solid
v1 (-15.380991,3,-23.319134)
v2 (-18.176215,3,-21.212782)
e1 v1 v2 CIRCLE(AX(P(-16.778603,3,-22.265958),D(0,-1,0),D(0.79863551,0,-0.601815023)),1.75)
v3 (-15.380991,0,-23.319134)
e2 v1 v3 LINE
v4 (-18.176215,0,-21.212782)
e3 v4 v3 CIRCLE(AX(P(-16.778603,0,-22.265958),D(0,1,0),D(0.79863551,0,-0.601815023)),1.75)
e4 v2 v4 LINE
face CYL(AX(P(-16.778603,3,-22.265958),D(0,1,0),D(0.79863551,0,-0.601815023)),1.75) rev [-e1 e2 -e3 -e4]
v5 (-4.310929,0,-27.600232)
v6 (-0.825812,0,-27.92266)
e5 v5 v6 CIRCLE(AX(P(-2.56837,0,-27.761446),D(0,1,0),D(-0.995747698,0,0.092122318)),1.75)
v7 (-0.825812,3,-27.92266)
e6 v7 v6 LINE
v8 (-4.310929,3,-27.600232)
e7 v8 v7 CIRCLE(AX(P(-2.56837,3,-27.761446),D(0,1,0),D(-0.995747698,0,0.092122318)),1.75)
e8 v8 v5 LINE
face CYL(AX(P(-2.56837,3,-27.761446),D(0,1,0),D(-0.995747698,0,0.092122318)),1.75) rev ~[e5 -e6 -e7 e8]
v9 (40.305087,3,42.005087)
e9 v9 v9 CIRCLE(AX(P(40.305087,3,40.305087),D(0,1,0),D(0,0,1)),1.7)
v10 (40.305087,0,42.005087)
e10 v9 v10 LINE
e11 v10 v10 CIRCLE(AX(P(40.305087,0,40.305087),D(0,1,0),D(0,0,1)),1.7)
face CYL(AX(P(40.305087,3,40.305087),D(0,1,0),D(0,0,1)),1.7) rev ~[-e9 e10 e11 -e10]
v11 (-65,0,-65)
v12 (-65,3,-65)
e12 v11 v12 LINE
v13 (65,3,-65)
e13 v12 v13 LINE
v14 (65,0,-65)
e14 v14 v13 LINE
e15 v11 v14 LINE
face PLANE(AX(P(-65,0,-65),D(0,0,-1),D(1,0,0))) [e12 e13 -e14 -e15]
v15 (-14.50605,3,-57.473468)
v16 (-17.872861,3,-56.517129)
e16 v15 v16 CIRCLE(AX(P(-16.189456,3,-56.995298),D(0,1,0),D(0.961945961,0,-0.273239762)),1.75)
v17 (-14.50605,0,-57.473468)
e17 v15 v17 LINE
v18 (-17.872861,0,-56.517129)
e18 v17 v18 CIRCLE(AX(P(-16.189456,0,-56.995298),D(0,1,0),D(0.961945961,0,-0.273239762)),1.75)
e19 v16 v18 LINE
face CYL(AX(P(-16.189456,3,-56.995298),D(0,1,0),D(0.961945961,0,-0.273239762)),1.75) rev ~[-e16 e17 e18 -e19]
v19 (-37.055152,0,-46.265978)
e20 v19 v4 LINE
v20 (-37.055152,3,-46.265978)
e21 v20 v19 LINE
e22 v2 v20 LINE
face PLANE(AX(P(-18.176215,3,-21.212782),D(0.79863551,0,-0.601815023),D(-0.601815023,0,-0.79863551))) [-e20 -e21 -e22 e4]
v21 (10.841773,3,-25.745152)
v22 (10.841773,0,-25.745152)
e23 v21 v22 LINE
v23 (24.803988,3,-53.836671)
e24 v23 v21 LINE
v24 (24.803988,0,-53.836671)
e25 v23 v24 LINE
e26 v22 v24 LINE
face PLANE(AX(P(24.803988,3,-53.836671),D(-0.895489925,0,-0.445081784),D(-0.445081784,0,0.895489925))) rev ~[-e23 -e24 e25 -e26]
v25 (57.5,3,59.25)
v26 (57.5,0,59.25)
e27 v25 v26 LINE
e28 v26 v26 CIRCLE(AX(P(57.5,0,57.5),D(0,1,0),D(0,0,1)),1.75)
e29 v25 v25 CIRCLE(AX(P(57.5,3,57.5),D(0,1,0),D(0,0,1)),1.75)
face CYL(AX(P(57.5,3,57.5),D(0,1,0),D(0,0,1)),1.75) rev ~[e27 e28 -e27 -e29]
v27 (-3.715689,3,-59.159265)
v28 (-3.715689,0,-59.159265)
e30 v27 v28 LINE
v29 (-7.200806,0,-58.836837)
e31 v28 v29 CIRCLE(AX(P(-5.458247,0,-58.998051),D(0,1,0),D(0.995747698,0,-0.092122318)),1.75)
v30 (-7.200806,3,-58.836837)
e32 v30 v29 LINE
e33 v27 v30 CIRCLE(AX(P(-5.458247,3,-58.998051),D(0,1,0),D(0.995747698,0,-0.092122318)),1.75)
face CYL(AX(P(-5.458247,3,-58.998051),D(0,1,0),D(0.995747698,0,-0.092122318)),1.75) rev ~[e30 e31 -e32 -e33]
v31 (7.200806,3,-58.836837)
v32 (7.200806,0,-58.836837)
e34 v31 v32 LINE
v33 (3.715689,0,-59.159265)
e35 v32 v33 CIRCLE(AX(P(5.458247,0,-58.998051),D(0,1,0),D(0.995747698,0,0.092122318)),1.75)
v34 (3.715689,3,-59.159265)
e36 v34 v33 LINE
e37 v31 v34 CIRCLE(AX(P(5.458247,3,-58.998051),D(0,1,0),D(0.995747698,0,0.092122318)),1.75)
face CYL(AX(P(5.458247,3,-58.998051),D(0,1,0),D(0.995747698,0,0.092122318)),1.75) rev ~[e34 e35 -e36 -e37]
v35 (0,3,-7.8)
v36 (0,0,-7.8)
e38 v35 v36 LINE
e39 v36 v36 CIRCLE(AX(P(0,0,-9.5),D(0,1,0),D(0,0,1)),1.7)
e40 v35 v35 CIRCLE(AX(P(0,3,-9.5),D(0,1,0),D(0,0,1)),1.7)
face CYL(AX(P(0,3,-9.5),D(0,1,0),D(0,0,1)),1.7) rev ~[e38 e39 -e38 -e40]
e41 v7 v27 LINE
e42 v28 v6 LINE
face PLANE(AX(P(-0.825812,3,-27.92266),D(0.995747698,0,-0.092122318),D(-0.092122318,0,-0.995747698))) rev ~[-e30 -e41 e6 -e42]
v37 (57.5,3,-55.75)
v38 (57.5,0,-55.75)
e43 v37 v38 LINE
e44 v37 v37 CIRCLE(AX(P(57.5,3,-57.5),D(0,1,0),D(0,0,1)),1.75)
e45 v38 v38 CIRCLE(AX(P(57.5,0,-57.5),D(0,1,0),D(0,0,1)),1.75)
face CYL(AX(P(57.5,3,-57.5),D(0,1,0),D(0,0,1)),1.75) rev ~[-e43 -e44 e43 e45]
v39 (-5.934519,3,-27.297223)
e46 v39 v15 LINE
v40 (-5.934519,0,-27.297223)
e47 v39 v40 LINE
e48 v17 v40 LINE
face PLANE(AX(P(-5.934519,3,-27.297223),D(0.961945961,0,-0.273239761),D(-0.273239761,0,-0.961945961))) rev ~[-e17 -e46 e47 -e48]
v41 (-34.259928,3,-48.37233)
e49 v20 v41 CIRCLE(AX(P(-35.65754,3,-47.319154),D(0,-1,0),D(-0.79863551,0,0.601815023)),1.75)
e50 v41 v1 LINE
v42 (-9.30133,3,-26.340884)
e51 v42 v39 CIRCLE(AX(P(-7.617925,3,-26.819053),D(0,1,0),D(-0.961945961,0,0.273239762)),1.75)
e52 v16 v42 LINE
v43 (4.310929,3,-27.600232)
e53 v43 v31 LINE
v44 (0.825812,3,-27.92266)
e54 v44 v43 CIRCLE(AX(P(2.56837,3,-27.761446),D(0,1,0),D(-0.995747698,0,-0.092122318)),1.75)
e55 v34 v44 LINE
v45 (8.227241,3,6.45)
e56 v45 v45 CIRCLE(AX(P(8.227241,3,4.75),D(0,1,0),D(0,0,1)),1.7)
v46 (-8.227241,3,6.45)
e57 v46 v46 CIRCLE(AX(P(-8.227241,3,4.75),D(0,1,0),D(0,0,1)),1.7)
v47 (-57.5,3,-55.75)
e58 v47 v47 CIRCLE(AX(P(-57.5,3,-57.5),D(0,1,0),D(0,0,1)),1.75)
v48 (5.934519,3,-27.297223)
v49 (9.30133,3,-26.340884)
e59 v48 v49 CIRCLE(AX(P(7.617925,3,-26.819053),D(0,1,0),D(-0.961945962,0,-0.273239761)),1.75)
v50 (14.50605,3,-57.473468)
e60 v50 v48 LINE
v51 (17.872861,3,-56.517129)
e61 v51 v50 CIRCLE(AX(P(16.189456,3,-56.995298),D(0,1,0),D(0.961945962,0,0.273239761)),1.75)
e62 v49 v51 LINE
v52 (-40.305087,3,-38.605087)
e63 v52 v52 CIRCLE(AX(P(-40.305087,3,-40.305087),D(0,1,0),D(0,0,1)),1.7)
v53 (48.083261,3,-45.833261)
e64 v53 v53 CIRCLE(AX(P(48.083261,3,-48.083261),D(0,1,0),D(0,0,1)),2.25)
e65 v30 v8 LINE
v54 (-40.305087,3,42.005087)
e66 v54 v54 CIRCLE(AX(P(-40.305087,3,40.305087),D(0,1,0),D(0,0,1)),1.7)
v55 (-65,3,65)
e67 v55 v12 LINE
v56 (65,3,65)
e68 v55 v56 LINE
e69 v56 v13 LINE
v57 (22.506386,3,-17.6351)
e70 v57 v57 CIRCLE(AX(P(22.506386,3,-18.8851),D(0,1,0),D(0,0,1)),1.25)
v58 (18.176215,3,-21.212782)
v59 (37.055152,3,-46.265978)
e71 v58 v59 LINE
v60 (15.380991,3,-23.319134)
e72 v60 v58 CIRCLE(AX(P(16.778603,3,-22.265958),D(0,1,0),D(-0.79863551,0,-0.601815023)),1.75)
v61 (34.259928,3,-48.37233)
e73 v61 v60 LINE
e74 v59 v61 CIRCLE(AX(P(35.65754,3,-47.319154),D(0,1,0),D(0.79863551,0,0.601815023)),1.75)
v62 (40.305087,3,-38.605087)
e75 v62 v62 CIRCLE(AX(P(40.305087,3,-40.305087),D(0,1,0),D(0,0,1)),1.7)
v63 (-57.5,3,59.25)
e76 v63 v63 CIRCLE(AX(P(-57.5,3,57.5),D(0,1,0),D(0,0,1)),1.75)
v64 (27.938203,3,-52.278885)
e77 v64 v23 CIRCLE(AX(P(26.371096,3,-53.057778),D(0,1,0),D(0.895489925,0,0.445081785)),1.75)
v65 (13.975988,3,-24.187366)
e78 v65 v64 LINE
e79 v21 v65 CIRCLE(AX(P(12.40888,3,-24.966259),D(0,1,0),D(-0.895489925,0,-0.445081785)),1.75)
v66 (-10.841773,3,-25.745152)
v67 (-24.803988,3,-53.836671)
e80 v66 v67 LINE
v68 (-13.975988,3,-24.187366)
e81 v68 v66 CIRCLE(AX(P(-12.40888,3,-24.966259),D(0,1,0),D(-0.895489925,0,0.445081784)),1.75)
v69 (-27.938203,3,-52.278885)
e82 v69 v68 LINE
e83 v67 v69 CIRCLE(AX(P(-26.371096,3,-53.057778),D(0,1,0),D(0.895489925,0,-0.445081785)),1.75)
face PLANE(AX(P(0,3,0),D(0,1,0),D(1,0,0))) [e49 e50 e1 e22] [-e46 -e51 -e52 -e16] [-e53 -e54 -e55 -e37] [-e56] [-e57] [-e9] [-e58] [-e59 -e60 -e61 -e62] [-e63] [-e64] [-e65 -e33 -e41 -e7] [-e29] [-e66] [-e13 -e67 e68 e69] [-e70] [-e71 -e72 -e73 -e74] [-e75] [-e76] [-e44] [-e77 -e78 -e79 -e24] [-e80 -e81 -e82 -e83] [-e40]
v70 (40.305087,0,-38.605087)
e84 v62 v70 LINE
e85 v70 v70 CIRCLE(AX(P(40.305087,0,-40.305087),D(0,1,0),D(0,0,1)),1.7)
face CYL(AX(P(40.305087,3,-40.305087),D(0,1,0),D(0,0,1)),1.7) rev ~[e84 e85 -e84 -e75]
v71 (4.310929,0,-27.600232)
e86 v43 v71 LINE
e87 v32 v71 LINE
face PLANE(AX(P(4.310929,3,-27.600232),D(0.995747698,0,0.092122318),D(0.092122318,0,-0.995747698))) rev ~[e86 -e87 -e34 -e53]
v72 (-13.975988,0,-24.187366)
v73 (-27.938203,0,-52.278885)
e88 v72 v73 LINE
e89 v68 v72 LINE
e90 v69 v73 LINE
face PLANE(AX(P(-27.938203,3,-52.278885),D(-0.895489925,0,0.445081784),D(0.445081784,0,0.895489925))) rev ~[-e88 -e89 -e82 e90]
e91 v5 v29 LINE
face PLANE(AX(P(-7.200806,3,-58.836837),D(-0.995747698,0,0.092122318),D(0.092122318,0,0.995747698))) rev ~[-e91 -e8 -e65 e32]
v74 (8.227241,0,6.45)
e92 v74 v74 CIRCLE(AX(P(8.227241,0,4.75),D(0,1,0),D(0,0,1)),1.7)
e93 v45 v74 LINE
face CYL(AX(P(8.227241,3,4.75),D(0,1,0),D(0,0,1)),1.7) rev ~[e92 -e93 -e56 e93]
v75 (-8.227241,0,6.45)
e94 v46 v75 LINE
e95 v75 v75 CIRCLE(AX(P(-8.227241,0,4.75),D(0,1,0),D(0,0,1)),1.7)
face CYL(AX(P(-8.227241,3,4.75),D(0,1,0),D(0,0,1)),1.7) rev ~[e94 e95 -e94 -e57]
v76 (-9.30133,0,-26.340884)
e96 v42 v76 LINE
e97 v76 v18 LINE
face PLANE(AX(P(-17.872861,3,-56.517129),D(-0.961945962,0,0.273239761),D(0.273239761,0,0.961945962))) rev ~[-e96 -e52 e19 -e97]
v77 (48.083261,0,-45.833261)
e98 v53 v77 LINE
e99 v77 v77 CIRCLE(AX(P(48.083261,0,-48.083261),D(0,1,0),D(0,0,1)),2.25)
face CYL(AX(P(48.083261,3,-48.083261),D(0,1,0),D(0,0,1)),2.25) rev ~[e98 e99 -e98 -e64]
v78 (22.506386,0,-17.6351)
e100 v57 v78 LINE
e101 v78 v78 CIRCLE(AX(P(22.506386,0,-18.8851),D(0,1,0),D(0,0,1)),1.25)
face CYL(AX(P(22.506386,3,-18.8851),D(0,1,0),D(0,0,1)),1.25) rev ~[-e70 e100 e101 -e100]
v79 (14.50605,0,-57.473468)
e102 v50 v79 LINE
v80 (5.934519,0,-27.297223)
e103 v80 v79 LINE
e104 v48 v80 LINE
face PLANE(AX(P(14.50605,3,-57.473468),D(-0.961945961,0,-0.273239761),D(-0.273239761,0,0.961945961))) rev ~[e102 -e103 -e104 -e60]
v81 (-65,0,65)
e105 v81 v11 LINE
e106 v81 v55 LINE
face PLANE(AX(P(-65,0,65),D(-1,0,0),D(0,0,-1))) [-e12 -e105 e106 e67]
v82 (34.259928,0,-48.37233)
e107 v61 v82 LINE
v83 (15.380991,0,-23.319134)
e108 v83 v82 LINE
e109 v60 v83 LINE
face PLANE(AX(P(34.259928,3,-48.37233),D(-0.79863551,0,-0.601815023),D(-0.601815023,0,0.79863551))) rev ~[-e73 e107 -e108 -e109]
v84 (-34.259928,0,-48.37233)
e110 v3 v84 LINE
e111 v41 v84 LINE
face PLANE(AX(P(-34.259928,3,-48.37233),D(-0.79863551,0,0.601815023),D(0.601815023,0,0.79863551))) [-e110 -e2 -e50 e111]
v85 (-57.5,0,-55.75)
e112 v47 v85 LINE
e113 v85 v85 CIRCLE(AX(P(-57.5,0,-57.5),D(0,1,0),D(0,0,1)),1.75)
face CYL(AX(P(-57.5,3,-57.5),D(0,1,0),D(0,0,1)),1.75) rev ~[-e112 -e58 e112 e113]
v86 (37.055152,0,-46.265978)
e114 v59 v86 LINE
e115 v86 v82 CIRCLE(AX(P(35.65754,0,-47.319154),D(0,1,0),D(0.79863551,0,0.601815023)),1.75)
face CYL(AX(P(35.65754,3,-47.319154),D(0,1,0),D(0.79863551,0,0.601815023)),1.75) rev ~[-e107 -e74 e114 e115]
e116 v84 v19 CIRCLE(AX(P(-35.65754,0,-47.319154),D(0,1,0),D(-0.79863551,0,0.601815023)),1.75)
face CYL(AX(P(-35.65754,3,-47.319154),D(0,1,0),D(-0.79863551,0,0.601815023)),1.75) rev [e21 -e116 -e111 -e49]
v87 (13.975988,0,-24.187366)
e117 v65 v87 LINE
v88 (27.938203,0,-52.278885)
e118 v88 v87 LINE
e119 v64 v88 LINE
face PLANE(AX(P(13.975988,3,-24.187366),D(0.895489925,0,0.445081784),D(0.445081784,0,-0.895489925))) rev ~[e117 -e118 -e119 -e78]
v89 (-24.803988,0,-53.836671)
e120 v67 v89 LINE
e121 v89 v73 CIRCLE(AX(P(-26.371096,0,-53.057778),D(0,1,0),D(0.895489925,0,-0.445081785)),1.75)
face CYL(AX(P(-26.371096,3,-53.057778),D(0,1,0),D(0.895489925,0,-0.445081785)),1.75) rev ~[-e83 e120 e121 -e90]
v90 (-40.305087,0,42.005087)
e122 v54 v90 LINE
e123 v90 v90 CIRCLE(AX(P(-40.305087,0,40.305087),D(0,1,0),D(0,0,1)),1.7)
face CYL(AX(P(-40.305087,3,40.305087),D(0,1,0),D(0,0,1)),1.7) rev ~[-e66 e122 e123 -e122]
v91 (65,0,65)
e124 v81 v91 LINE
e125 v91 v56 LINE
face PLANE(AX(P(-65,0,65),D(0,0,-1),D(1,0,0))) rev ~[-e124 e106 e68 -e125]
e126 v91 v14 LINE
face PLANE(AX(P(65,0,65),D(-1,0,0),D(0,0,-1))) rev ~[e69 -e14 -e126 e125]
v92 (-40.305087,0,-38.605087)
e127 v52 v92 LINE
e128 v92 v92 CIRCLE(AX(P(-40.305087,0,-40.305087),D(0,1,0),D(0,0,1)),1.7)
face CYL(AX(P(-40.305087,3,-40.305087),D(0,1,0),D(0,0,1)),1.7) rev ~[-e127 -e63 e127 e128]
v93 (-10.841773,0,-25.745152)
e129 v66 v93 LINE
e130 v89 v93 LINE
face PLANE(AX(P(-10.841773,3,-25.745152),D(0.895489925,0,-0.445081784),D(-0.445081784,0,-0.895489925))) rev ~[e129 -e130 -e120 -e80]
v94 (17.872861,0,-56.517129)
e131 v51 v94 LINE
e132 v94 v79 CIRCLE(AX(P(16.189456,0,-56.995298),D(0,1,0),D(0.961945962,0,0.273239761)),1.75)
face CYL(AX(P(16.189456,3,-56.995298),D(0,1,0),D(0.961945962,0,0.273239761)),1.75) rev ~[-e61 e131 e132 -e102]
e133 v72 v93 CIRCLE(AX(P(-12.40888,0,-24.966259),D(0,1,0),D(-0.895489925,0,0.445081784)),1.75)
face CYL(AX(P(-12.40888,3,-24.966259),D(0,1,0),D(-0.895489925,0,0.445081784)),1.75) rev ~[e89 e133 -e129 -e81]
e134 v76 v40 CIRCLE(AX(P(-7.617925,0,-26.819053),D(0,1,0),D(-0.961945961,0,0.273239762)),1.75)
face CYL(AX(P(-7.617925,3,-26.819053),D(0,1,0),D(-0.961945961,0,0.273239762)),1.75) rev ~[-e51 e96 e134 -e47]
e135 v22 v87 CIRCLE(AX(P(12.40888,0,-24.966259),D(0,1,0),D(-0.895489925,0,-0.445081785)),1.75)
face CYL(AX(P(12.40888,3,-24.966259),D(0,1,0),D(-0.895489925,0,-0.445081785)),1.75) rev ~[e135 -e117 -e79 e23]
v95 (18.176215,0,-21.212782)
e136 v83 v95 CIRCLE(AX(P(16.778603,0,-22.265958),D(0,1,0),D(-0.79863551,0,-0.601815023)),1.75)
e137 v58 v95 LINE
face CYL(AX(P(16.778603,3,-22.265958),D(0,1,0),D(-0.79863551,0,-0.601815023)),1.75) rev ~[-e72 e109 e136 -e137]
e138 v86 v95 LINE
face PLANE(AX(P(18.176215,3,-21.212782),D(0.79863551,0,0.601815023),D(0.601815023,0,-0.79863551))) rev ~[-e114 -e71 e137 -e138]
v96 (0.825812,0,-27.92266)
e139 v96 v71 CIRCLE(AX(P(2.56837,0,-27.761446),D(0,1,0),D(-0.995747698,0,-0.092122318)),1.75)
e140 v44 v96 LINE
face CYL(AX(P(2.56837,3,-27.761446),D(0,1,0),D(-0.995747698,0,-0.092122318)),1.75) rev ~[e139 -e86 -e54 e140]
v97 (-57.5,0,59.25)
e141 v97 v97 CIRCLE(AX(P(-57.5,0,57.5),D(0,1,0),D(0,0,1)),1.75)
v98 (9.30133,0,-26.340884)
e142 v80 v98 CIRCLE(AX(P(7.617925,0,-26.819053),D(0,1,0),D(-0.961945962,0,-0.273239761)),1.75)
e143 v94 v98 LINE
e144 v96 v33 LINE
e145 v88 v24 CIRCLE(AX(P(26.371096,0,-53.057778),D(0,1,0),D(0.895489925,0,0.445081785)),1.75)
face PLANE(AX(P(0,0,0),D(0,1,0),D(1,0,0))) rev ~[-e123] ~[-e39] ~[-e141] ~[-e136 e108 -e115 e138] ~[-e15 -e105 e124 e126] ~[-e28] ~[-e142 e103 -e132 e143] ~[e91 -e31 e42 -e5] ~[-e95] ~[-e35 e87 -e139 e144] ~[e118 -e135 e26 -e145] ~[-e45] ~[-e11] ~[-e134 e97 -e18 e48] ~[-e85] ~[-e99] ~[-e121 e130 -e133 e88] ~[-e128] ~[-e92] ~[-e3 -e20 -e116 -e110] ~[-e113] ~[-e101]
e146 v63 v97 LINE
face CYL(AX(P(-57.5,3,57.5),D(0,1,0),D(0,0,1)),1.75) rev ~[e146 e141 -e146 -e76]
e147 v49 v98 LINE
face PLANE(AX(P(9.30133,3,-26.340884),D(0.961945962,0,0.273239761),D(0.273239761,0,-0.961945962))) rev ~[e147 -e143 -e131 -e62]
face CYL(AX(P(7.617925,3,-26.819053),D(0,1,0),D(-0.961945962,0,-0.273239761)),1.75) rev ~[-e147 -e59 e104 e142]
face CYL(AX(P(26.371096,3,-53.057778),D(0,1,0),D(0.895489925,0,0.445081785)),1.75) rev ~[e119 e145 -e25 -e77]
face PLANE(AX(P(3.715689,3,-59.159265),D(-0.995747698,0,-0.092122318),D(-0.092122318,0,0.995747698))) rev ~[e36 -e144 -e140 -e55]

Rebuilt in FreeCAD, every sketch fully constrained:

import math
import FreeCAD as App
import Part
import Sketcher
Q = App.Units.Quantity


def add_polygon(sketch, points):
    """Adds a closed chain of lines whose ends are joined by coincident constraints."""
    first, n = sketch.GeometryCount, len(points)
    for a, b in zip(points, points[1:] + points[:1]):
        sketch.addGeometry(Part.LineSegment(App.Vector(*a, 0), App.Vector(*b, 0)), False)
    for i in range(n):
        sketch.addConstraint(Sketcher.Constraint("Coincident", first + i, 2, first + (i + 1) % n, 1))

doc = App.newDocument("Part")
body = doc.addObject("PartDesign::Body", "Body")

# Sketch on XZ plane
sketch1 = body.newObject("Sketcher::SketchObject", "Sketch")
sketch1.AttachmentSupport = (doc.getObject("XZ_Plane"), [""])
sketch1.MapMode = "FlatFace"
add_polygon(sketch1, [(-65, -65), (-65, 65), (65, 65), (65, -65)])  # lines 0-3
sketch1.addConstraint([
    Sketcher.Constraint("Vertical", 0),
    Sketcher.Constraint("Horizontal", 1),
    Sketcher.Constraint("Vertical", 2),
    Sketcher.Constraint("Horizontal", 3),
    Sketcher.Constraint("Symmetric", 0, 2, 2, 2, -1, 1),
    Sketcher.Constraint("Equal", 3, 0),
    Sketcher.Constraint("DistanceX", 1, 1, 1, 2, 130.0),
])
pad1 = body.newObject("PartDesign::Pad", "Pad")
pad1.Profile = sketch1
pad1.Length = 3
pad1.Reversed = True

# Sketch on XZ plane
sketch2 = body.newObject("Sketcher::SketchObject", "Sketch001")
sketch2.AttachmentSupport = (doc.getObject("XZ_Plane"), [""])
sketch2.MapMode = "FlatFace"
sketch2.AttachmentOffset = App.Placement(App.Vector(0, 0, -3), App.Rotation())
sketch2.addGeometry(Part.Circle(App.Vector(-57.5, -57.5, 0), App.Vector(0, 0, 1), 1.8), False)
sketch2.addConstraint([
    Sketcher.Constraint("Diameter", 0, 3.5),
    Sketcher.Constraint("DistanceX", 0, 3, -1, 1, 57.5),
    Sketcher.Constraint("DistanceY", 0, 3, -1, 1, 57.5),
])
pocket1 = body.newObject("PartDesign::Pocket", "Pocket")
pocket1.Profile = sketch2
pocket1.Type = "UpToFirst"
pocket1.Reversed = True

# Sketch on XZ plane
sketch3 = body.newObject("Sketcher::SketchObject", "Sketch002")
sketch3.AttachmentSupport = (doc.getObject("XZ_Plane"), [""])
sketch3.MapMode = "FlatFace"
sketch3.AttachmentOffset = App.Placement(App.Vector(0, 0, -3), App.Rotation())
sketch3.addGeometry(Part.Circle(App.Vector(57.5, -57.5, 0), App.Vector(0, 0, 1), 1.8), False)
sketch3.addConstraint([
    Sketcher.Constraint("Diameter", 0, 3.5),
    Sketcher.Constraint("DistanceX", -1, 1, 0, 3, 57.5),
    Sketcher.Constraint("DistanceY", 0, 3, -1, 1, 57.5),
])
pocket2 = body.newObject("PartDesign::Pocket", "Pocket001")
pocket2.Profile = sketch3
pocket2.Type = "UpToFirst"
pocket2.Reversed = True

# Sketch on XZ plane
sketch4 = body.newObject("Sketcher::SketchObject", "Sketch003")
sketch4.AttachmentSupport = (doc.getObject("XZ_Plane"), [""])
sketch4.MapMode = "FlatFace"
sketch4.AttachmentOffset = App.Placement(App.Vector(0, 0, -3), App.Rotation())
sketch4.addGeometry(Part.Circle(App.Vector(57.5, 57.5, 0), App.Vector(0, 0, 1), 1.8), False)
sketch4.addConstraint([
    Sketcher.Constraint("Diameter", 0, 3.5),
    Sketcher.Constraint("DistanceX", -1, 1, 0, 3, 57.5),
    Sketcher.Constraint("DistanceY", -1, 1, 0, 3, 57.5),
])
pocket3 = body.newObject("PartDesign::Pocket", "Pocket002")
pocket3.Profile = sketch4
pocket3.Type = "UpToFirst"
pocket3.Reversed = True

# Sketch on XZ plane
sketch5 = body.newObject("Sketcher::SketchObject", "Sketch004")
sketch5.AttachmentSupport = (doc.getObject("XZ_Plane"), [""])
sketch5.MapMode = "FlatFace"
sketch5.AttachmentOffset = App.Placement(App.Vector(0, 0, -3), App.Rotation())
sketch5.addGeometry(Part.Circle(App.Vector(-57.5, 57.5, 0), App.Vector(0, 0, 1), 1.8), False)
sketch5.addConstraint([
    Sketcher.Constraint("Diameter", 0, 3.5),
    Sketcher.Constraint("DistanceX", 0, 3, -1, 1, 57.5),
    Sketcher.Constraint("DistanceY", -1, 1, 0, 3, 57.5),
])
pocket4 = body.newObject("PartDesign::Pocket", "Pocket003")
pocket4.Profile = sketch5
pocket4.Type = "UpToFirst"
pocket4.Reversed = True

# Sketch on XZ plane
sketch6 = body.newObject("Sketcher::SketchObject", "Sketch005")
sketch6.AttachmentSupport = (doc.getObject("XZ_Plane"), [""])
sketch6.MapMode = "FlatFace"
sketch6.AttachmentOffset = App.Placement(App.Vector(0, 0, -3), App.Rotation())
sketch6.addGeometry(Part.Circle(App.Vector(-40.3, -40.3, 0), App.Vector(0, 0, 1), 1.7), False)
sketch6.addConstraint([
    Sketcher.Constraint("Diameter", 0, 3.4),
    Sketcher.Constraint("DistanceX", 0, 3, -1, 1, 40.305087),
    Sketcher.Constraint("DistanceY", 0, 3, -1, 1, 40.305087),
])
pocket5 = body.newObject("PartDesign::Pocket", "Pocket004")
pocket5.Profile = sketch6
pocket5.Type = "UpToFirst"
pocket5.Reversed = True

# Sketch on XZ plane
sketch7 = body.newObject("Sketcher::SketchObject", "Sketch006")
sketch7.AttachmentSupport = (doc.getObject("XZ_Plane"), [""])
sketch7.MapMode = "FlatFace"
sketch7.AttachmentOffset = App.Placement(App.Vector(0, 0, -3), App.Rotation())
sketch7.addGeometry(Part.Circle(App.Vector(40.3, -40.3, 0), App.Vector(0, 0, 1), 1.7), False)
sketch7.addConstraint([
    Sketcher.Constraint("Diameter", 0, 3.4),
    Sketcher.Constraint("DistanceX", -1, 1, 0, 3, 40.305087),
    Sketcher.Constraint("DistanceY", 0, 3, -1, 1, 40.305087),
])
pocket6 = body.newObject("PartDesign::Pocket", "Pocket005")
pocket6.Profile = sketch7
pocket6.Type = "UpToFirst"
pocket6.Reversed = True

# Sketch on XZ plane
sketch8 = body.newObject("Sketcher::SketchObject", "Sketch007")
sketch8.AttachmentSupport = (doc.getObject("XZ_Plane"), [""])
sketch8.MapMode = "FlatFace"
sketch8.AttachmentOffset = App.Placement(App.Vector(0, 0, -3), App.Rotation())
sketch8.addGeometry(Part.Circle(App.Vector(40.3, 40.3, 0), App.Vector(0, 0, 1), 1.7), False)
sketch8.addConstraint([
    Sketcher.Constraint("Diameter", 0, 3.4),
    Sketcher.Constraint("DistanceX", -1, 1, 0, 3, 40.305087),
    Sketcher.Constraint("DistanceY", -1, 1, 0, 3, 40.305087),
])
pocket7 = body.newObject("PartDesign::Pocket", "Pocket006")
pocket7.Profile = sketch8
pocket7.Type = "UpToFirst"
pocket7.Reversed = True

# Sketch on XZ plane
sketch9 = body.newObject("Sketcher::SketchObject", "Sketch008")
sketch9.AttachmentSupport = (doc.getObject("XZ_Plane"), [""])
sketch9.MapMode = "FlatFace"
sketch9.AttachmentOffset = App.Placement(App.Vector(0, 0, -3), App.Rotation())
sketch9.addGeometry(Part.Circle(App.Vector(-40.3, 40.3, 0), App.Vector(0, 0, 1), 1.7), False)
sketch9.addConstraint([
    Sketcher.Constraint("Diameter", 0, 3.4),
    Sketcher.Constraint("DistanceX", 0, 3, -1, 1, 40.305087),
    Sketcher.Constraint("DistanceY", -1, 1, 0, 3, 40.305087),
])
pocket8 = body.newObject("PartDesign::Pocket", "Pocket007")
pocket8.Profile = sketch9
pocket8.Type = "UpToFirst"
pocket8.Reversed = True

# Sketch on XZ plane
sketch10 = body.newObject("Sketcher::SketchObject", "Sketch009")
sketch10.AttachmentSupport = (doc.getObject("XZ_Plane"), [""])
sketch10.MapMode = "FlatFace"
sketch10.AttachmentOffset = App.Placement(App.Vector(0, 0, -3), App.Rotation())
sketch10.addGeometry(Part.Circle(App.Vector(0, -9.5, 0), App.Vector(0, 0, 1), 1.7), False)
sketch10.addConstraint([
    Sketcher.Constraint("PointOnObject", 0, 3, -2),
    Sketcher.Constraint("Diameter", 0, 3.4),
    Sketcher.Constraint("DistanceY", 0, 3, -1, 1, 9.5),
])
pocket9 = body.newObject("PartDesign::Pocket", "Pocket008")
pocket9.Profile = sketch10
pocket9.Type = "UpToFirst"
pocket9.Reversed = True

# Sketch on XZ plane
sketch11 = body.newObject("Sketcher::SketchObject", "Sketch010")
sketch11.AttachmentSupport = (doc.getObject("XZ_Plane"), [""])
sketch11.MapMode = "FlatFace"
sketch11.AttachmentOffset = App.Placement(App.Vector(0, 0, -3), App.Rotation())
sketch11.addGeometry(Part.Circle(App.Vector(8.2, 4.8, 0), App.Vector(0, 0, 1), 1.7), False)
sketch11.addConstraint([
    Sketcher.Constraint("Diameter", 0, 3.4),
    Sketcher.Constraint("DistanceY", -1, 1, 0, 3, 4.75),
    Sketcher.Constraint("DistanceX", -1, 1, 0, 3, 8.227241),
])
pocket10 = body.newObject("PartDesign::Pocket", "Pocket009")
pocket10.Profile = sketch11
pocket10.Type = "UpToFirst"
pocket10.Reversed = True

# Sketch on XZ plane
sketch12 = body.newObject("Sketcher::SketchObject", "Sketch011")
sketch12.AttachmentSupport = (doc.getObject("XZ_Plane"), [""])
sketch12.MapMode = "FlatFace"
sketch12.AttachmentOffset = App.Placement(App.Vector(0, 0, -3), App.Rotation())
sketch12.addGeometry(Part.Circle(App.Vector(-8.2, 4.8, 0), App.Vector(0, 0, 1), 1.7), False)
sketch12.addConstraint([
    Sketcher.Constraint("Diameter", 0, 3.4),
    Sketcher.Constraint("DistanceY", -1, 1, 0, 3, 4.75),
    Sketcher.Constraint("DistanceX", 0, 3, -1, 1, 8.227241),
])
pocket11 = body.newObject("PartDesign::Pocket", "Pocket010")
pocket11.Profile = sketch12
pocket11.Type = "UpToFirst"
pocket11.Reversed = True

# Sketch on XZ plane
sketch13 = body.newObject("Sketcher::SketchObject", "Sketch012")
sketch13.AttachmentSupport = (doc.getObject("XZ_Plane"), [""])
sketch13.MapMode = "FlatFace"
sketch13.AttachmentOffset = App.Placement(App.Vector(0, 0, -3), App.Rotation())
sketch13.addGeometry(Part.Circle(App.Vector(48.1, -48.1, 0), App.Vector(0, 0, 1), 2.2), False)
sketch13.addConstraint([
    Sketcher.Constraint("Diameter", 0, 4.5),
    Sketcher.Constraint("DistanceX", -1, 1, 0, 3, 48.083261),
    Sketcher.Constraint("DistanceY", 0, 3, -1, 1, 48.083261),
])
pocket12 = body.newObject("PartDesign::Pocket", "Pocket011")
pocket12.Profile = sketch13
pocket12.Type = "UpToFirst"
pocket12.Reversed = True

# Sketch on XZ plane
sketch14 = body.newObject("Sketcher::SketchObject", "Sketch013")
sketch14.AttachmentSupport = (doc.getObject("XZ_Plane"), [""])
sketch14.MapMode = "FlatFace"
sketch14.AttachmentOffset = App.Placement(App.Vector(0, 0, -3), App.Rotation())
sketch14.addGeometry(Part.Circle(App.Vector(22.5, -18.9, 0), App.Vector(0, 0, 1), 1.2), False)
sketch14.addConstraint([
    Sketcher.Constraint("Diameter", 0, 2.5),
    Sketcher.Constraint("DistanceY", 0, 3, -1, 1, 18.8851),
    Sketcher.Constraint("DistanceX", -1, 1, 0, 3, 22.506386),
])
pocket13 = body.newObject("PartDesign::Pocket", "Pocket012")
pocket13.Profile = sketch14
pocket13.Type = "UpToFirst"
pocket13.Reversed = True

# Sketch on XZ plane
sketch15 = body.newObject("Sketcher::SketchObject", "Sketch014")
sketch15.AttachmentSupport = (doc.getObject("XZ_Plane"), [""])
sketch15.MapMode = "FlatFace"
sketch15.AttachmentOffset = App.Placement(App.Vector(0, 0, -3), App.Rotation())
sketch15.addGeometry([
    Part.LineSegment(App.Vector(-15.4, -23.3, 0), App.Vector(-34.3, -48.4, 0)),
    Part.ArcOfCircle(Part.Circle(App.Vector(-35.7, -47.3, 0), App.Vector(0, 0, 1), 1.8), math.radians(143), math.radians(323)),
    Part.LineSegment(App.Vector(-37.1, -46.3, 0), App.Vector(-18.2, -21.2, 0)),
    Part.ArcOfCircle(Part.Circle(App.Vector(-16.8, -22.3, 0), App.Vector(0, 0, 1), 1.8), math.radians(-37), math.radians(143)),
], False)
sketch15.addConstraint([
    Sketcher.Constraint("Tangent", 0, 2, 1, 2),
    Sketcher.Constraint("Tangent", 1, 1, 2, 1),
    Sketcher.Constraint("Tangent", 2, 2, 3, 2),
    Sketcher.Constraint("Tangent", 3, 1, 0, 1),
    Sketcher.Constraint("Equal", 1, 3),
    Sketcher.Constraint("Angle", 0, Q("-127 deg")),
    Sketcher.Constraint("Radius", 1, 1.75),
    Sketcher.Constraint("Distance", 0, 31.37),
    Sketcher.Constraint("DistanceX", 1, 3, -1, 1, 35.65754),
    Sketcher.Constraint("DistanceY", 3, 3, -1, 1, 22.265958),
])
pocket14 = body.newObject("PartDesign::Pocket", "Pocket013")
pocket14.Profile = sketch15
pocket14.Type = "UpToFirst"
pocket14.Reversed = True

# Sketch on XZ plane
sketch16 = body.newObject("Sketcher::SketchObject", "Sketch015")
sketch16.AttachmentSupport = (doc.getObject("XZ_Plane"), [""])
sketch16.MapMode = "FlatFace"
sketch16.AttachmentOffset = App.Placement(App.Vector(0, 0, -3), App.Rotation())
sketch16.addGeometry([
    Part.LineSegment(App.Vector(-27.9, -52.3, 0), App.Vector(-14, -24.2, 0)),
    Part.ArcOfCircle(Part.Circle(App.Vector(-12.4, -25, 0), App.Vector(0, 0, 1), 1.8), math.radians(-26), math.radians(154)),
    Part.LineSegment(App.Vector(-10.8, -25.7, 0), App.Vector(-24.8, -53.8, 0)),
    Part.ArcOfCircle(Part.Circle(App.Vector(-26.4, -53.1, 0), App.Vector(0, 0, 1), 1.8), math.radians(154), math.radians(334)),
], False)
sketch16.addConstraint([
    Sketcher.Constraint("Tangent", 0, 2, 1, 2),
    Sketcher.Constraint("Tangent", 1, 1, 2, 1),
    Sketcher.Constraint("Tangent", 2, 2, 3, 2),
    Sketcher.Constraint("Tangent", 3, 1, 0, 1),
    Sketcher.Constraint("Equal", 1, 3),
    Sketcher.Constraint("Radius", 1, 1.75),
    Sketcher.Constraint("Distance", 0, 31.37),
    Sketcher.Constraint("DistanceX", 2, 2, 0, 2, 10.828001),
    Sketcher.Constraint("DistanceX", 1, 3, -1, 1, 12.40888),
    Sketcher.Constraint("DistanceY", 1, 3, -1, 1, 24.966259),
])
pocket15 = body.newObject("PartDesign::Pocket", "Pocket014")
pocket15.Profile = sketch16
pocket15.Type = "UpToFirst"
pocket15.Reversed = True

# Sketch on XZ plane
sketch17 = body.newObject("Sketcher::SketchObject", "Sketch016")
sketch17.AttachmentSupport = (doc.getObject("XZ_Plane"), [""])
sketch17.MapMode = "FlatFace"
sketch17.AttachmentOffset = App.Placement(App.Vector(0, 0, -3), App.Rotation())
sketch17.addGeometry([
    Part.LineSegment(App.Vector(-17.9, -56.5, 0), App.Vector(-9.3, -26.3, 0)),
    Part.ArcOfCircle(Part.Circle(App.Vector(-7.6, -26.8, 0), App.Vector(0, 0, 1), 1.8), math.radians(-16), math.radians(164)),
    Part.LineSegment(App.Vector(-5.9, -27.3, 0), App.Vector(-14.5, -57.5, 0)),
    Part.ArcOfCircle(Part.Circle(App.Vector(-16.2, -57, 0), App.Vector(0, 0, 1), 1.8), math.radians(164), math.radians(344)),
], False)
sketch17.addConstraint([
    Sketcher.Constraint("Tangent", 0, 2, 1, 2),
    Sketcher.Constraint("Tangent", 1, 1, 2, 1),
    Sketcher.Constraint("Tangent", 2, 2, 3, 2),
    Sketcher.Constraint("Tangent", 3, 1, 0, 1),
    Sketcher.Constraint("Equal", 1, 3),
    Sketcher.Constraint("Radius", 1, 1.75),
    Sketcher.Constraint("Distance", 0, 31.37),
    Sketcher.Constraint("DistanceY", 3, 3, -1, 1, 56.995298),
    Sketcher.Constraint("DistanceX", 0, 2, -1, 1, 9.30133),
    Sketcher.Constraint("DistanceX", 1, 1, -1, 1, 5.934519),
])
pocket16 = body.newObject("PartDesign::Pocket", "Pocket015")
pocket16.Profile = sketch17
pocket16.Type = "UpToFirst"
pocket16.Reversed = True

# Sketch on XZ plane
sketch18 = body.newObject("Sketcher::SketchObject", "Sketch017")
sketch18.AttachmentSupport = (doc.getObject("XZ_Plane"), [""])
sketch18.MapMode = "FlatFace"
sketch18.AttachmentOffset = App.Placement(App.Vector(0, 0, -3), App.Rotation())
sketch18.addGeometry([
    Part.LineSegment(App.Vector(-7.200806, -58.836837, 0), App.Vector(-4.310929, -27.600232, 0)),
    Part.ArcOfCircle(Part.Circle(App.Vector(-2.56837, -27.761446, 0), App.Vector(0, 0, 1), 1.75), math.radians(-5.285714), math.radians(174.714286)),
    Part.LineSegment(App.Vector(-0.825812, -27.92266, 0), App.Vector(-3.715689, -59.159265, 0)),
    Part.ArcOfCircle(Part.Circle(App.Vector(-5.458247, -58.998051, 0), App.Vector(0, 0, 1), 1.75), math.radians(174.714286), math.radians(354.714286)),
], False)
sketch18.addConstraint([
    Sketcher.Constraint("Coincident", 0, 2, 1, 2),
    Sketcher.Constraint("Coincident", 1, 1, 2, 1),
    Sketcher.Constraint("Coincident", 2, 2, 3, 2),
    Sketcher.Constraint("Coincident", 3, 1, 0, 1),
    Sketcher.Constraint("Radius", 1, 1.75),
    Sketcher.Constraint("Radius", 3, 1.75),
    Sketcher.Constraint("Distance", 0, 31.37),
    Sketcher.Constraint("Distance", 2, 31.37),
    Sketcher.Constraint("DistanceX", 1, 3, -1, 1, 2.56837),
    Sketcher.Constraint("DistanceY", 3, 3, -1, 1, 58.998051),
    Sketcher.Constraint("DistanceX", 0, 2, -1, 1, 4.310929),
    Sketcher.Constraint("DistanceY", 0, 2, -1, 1, 27.600232),
    Sketcher.Constraint("DistanceX", 1, 1, -1, 1, 0.825812),
    Sketcher.Constraint("DistanceX", 2, 2, -1, 1, 3.715689),
])
pocket17 = body.newObject("PartDesign::Pocket", "Pocket016")
pocket17.Profile = sketch18
pocket17.Type = "UpToFirst"
pocket17.Reversed = True

# Sketch on XZ plane
sketch19 = body.newObject("Sketcher::SketchObject", "Sketch018")
sketch19.AttachmentSupport = (doc.getObject("XZ_Plane"), [""])
sketch19.MapMode = "FlatFace"
sketch19.AttachmentOffset = App.Placement(App.Vector(0, 0, -3), App.Rotation())
sketch19.addGeometry([
    Part.LineSegment(App.Vector(3.715689, -59.159265, 0), App.Vector(0.825812, -27.92266, 0)),
    Part.ArcOfCircle(Part.Circle(App.Vector(2.56837, -27.761446, 0), App.Vector(0, 0, 1), 1.75), math.radians(5.285714), math.radians(185.285714)),
    Part.LineSegment(App.Vector(4.310929, -27.600232, 0), App.Vector(7.200806, -58.836837, 0)),
    Part.ArcOfCircle(Part.Circle(App.Vector(5.458247, -58.998051, 0), App.Vector(0, 0, 1), 1.75), math.radians(-174.714286), math.radians(5.285714)),
], False)
sketch19.addConstraint([
    Sketcher.Constraint("Coincident", 0, 2, 1, 2),
    Sketcher.Constraint("Coincident", 1, 1, 2, 1),
    Sketcher.Constraint("Coincident", 2, 2, 3, 2),
    Sketcher.Constraint("Coincident", 3, 1, 0, 1),
    Sketcher.Constraint("Radius", 1, 1.75),
    Sketcher.Constraint("Radius", 3, 1.75),
    Sketcher.Constraint("Distance", 0, 31.37),
    Sketcher.Constraint("Distance", 2, 31.37),
    Sketcher.Constraint("DistanceX", -1, 1, 1, 3, 2.56837),
    Sketcher.Constraint("DistanceY", 3, 3, -1, 1, 58.998051),
    Sketcher.Constraint("DistanceX", -1, 1, 0, 2, 0.825812),
    Sketcher.Constraint("DistanceY", 0, 2, -1, 1, 27.92266),
    Sketcher.Constraint("DistanceX", -1, 1, 1, 1, 4.310929),
    Sketcher.Constraint("DistanceX", -1, 1, 3, 1, 3.715689),
])
pocket18 = body.newObject("PartDesign::Pocket", "Pocket017")
pocket18.Profile = sketch19
pocket18.Type = "UpToFirst"
pocket18.Reversed = True

# Sketch on XZ plane
sketch20 = body.newObject("Sketcher::SketchObject", "Sketch019")
sketch20.AttachmentSupport = (doc.getObject("XZ_Plane"), [""])
sketch20.MapMode = "FlatFace"
sketch20.AttachmentOffset = App.Placement(App.Vector(0, 0, -3), App.Rotation())
sketch20.addGeometry([
    Part.LineSegment(App.Vector(14.5, -57.5, 0), App.Vector(5.9, -27.3, 0)),
    Part.ArcOfCircle(Part.Circle(App.Vector(7.6, -26.8, 0), App.Vector(0, 0, 1), 1.8), math.radians(16), math.radians(196)),
    Part.LineSegment(App.Vector(9.3, -26.3, 0), App.Vector(17.9, -56.5, 0)),
    Part.ArcOfCircle(Part.Circle(App.Vector(16.2, -57, 0), App.Vector(0, 0, 1), 1.8), math.radians(-164), math.radians(16)),
], False)
sketch20.addConstraint([
    Sketcher.Constraint("Tangent", 0, 2, 1, 2),
    Sketcher.Constraint("Tangent", 1, 1, 2, 1),
    Sketcher.Constraint("Tangent", 2, 2, 3, 2),
    Sketcher.Constraint("Tangent", 3, 1, 0, 1),
    Sketcher.Constraint("Equal", 1, 3),
    Sketcher.Constraint("Radius", 1, 1.75),
    Sketcher.Constraint("Distance", 0, 31.37),
    Sketcher.Constraint("DistanceY", 3, 3, -1, 1, 56.995298),
    Sketcher.Constraint("DistanceX", -1, 1, 0, 2, 5.934519),
    Sketcher.Constraint("DistanceX", -1, 1, 1, 1, 9.30133),
])
pocket19 = body.newObject("PartDesign::Pocket", "Pocket018")
pocket19.Profile = sketch20
pocket19.Type = "UpToFirst"
pocket19.Reversed = True

# Sketch on XZ plane
sketch21 = body.newObject("Sketcher::SketchObject", "Sketch020")
sketch21.AttachmentSupport = (doc.getObject("XZ_Plane"), [""])
sketch21.MapMode = "FlatFace"
sketch21.AttachmentOffset = App.Placement(App.Vector(0, 0, -3), App.Rotation())
sketch21.addGeometry([
    Part.LineSegment(App.Vector(24.8, -53.8, 0), App.Vector(10.8, -25.7, 0)),
    Part.ArcOfCircle(Part.Circle(App.Vector(12.4, -25, 0), App.Vector(0, 0, 1), 1.8), math.radians(26), math.radians(206)),
    Part.LineSegment(App.Vector(14, -24.2, 0), App.Vector(27.9, -52.3, 0)),
    Part.ArcOfCircle(Part.Circle(App.Vector(26.4, -53.1, 0), App.Vector(0, 0, 1), 1.8), math.radians(-154), math.radians(26)),
], False)
sketch21.addConstraint([
    Sketcher.Constraint("Tangent", 0, 2, 1, 2),
    Sketcher.Constraint("Tangent", 1, 1, 2, 1),
    Sketcher.Constraint("Tangent", 2, 2, 3, 2),
    Sketcher.Constraint("Tangent", 3, 1, 0, 1),
    Sketcher.Constraint("Equal", 1, 3),
    Sketcher.Constraint("Radius", 1, 1.75),
    Sketcher.Constraint("Distance", 0, 31.37),
    Sketcher.Constraint("DistanceX", 1, 1, 3, 1, 10.828001),
    Sketcher.Constraint("DistanceX", -1, 1, 1, 3, 12.40888),
    Sketcher.Constraint("DistanceY", 1, 3, -1, 1, 24.966259),
])
pocket20 = body.newObject("PartDesign::Pocket", "Pocket019")
pocket20.Profile = sketch21
pocket20.Type = "UpToFirst"
pocket20.Reversed = True

# Sketch on XZ plane
sketch22 = body.newObject("Sketcher::SketchObject", "Sketch021")
sketch22.AttachmentSupport = (doc.getObject("XZ_Plane"), [""])
sketch22.MapMode = "FlatFace"
sketch22.AttachmentOffset = App.Placement(App.Vector(0, 0, -3), App.Rotation())
sketch22.addGeometry([
    Part.LineSegment(App.Vector(34.3, -48.4, 0), App.Vector(15.4, -23.3, 0)),
    Part.ArcOfCircle(Part.Circle(App.Vector(16.8, -22.3, 0), App.Vector(0, 0, 1), 1.8), math.radians(37), math.radians(217)),
    Part.LineSegment(App.Vector(18.2, -21.2, 0), App.Vector(37.1, -46.3, 0)),
    Part.ArcOfCircle(Part.Circle(App.Vector(35.7, -47.3, 0), App.Vector(0, 0, 1), 1.8), math.radians(-143), math.radians(37)),
], False)
sketch22.addConstraint([
    Sketcher.Constraint("Tangent", 0, 2, 1, 2),
    Sketcher.Constraint("Tangent", 1, 1, 2, 1),
    Sketcher.Constraint("Tangent", 2, 2, 3, 2),
    Sketcher.Constraint("Tangent", 3, 1, 0, 1),
    Sketcher.Constraint("Equal", 1, 3),
    Sketcher.Constraint("Angle", 0, Q("127 deg")),
    Sketcher.Constraint("Radius", 1, 1.75),
    Sketcher.Constraint("Distance", 0, 31.37),
    Sketcher.Constraint("DistanceY", 1, 3, -1, 1, 22.265958),
    Sketcher.Constraint("DistanceX", -1, 1, 3, 3, 35.65754),
])
pocket21 = body.newObject("PartDesign::Pocket", "Pocket020")
pocket21.Profile = sketch22
pocket21.Type = "UpToFirst"
pocket21.Reversed = True

doc.recompute()
